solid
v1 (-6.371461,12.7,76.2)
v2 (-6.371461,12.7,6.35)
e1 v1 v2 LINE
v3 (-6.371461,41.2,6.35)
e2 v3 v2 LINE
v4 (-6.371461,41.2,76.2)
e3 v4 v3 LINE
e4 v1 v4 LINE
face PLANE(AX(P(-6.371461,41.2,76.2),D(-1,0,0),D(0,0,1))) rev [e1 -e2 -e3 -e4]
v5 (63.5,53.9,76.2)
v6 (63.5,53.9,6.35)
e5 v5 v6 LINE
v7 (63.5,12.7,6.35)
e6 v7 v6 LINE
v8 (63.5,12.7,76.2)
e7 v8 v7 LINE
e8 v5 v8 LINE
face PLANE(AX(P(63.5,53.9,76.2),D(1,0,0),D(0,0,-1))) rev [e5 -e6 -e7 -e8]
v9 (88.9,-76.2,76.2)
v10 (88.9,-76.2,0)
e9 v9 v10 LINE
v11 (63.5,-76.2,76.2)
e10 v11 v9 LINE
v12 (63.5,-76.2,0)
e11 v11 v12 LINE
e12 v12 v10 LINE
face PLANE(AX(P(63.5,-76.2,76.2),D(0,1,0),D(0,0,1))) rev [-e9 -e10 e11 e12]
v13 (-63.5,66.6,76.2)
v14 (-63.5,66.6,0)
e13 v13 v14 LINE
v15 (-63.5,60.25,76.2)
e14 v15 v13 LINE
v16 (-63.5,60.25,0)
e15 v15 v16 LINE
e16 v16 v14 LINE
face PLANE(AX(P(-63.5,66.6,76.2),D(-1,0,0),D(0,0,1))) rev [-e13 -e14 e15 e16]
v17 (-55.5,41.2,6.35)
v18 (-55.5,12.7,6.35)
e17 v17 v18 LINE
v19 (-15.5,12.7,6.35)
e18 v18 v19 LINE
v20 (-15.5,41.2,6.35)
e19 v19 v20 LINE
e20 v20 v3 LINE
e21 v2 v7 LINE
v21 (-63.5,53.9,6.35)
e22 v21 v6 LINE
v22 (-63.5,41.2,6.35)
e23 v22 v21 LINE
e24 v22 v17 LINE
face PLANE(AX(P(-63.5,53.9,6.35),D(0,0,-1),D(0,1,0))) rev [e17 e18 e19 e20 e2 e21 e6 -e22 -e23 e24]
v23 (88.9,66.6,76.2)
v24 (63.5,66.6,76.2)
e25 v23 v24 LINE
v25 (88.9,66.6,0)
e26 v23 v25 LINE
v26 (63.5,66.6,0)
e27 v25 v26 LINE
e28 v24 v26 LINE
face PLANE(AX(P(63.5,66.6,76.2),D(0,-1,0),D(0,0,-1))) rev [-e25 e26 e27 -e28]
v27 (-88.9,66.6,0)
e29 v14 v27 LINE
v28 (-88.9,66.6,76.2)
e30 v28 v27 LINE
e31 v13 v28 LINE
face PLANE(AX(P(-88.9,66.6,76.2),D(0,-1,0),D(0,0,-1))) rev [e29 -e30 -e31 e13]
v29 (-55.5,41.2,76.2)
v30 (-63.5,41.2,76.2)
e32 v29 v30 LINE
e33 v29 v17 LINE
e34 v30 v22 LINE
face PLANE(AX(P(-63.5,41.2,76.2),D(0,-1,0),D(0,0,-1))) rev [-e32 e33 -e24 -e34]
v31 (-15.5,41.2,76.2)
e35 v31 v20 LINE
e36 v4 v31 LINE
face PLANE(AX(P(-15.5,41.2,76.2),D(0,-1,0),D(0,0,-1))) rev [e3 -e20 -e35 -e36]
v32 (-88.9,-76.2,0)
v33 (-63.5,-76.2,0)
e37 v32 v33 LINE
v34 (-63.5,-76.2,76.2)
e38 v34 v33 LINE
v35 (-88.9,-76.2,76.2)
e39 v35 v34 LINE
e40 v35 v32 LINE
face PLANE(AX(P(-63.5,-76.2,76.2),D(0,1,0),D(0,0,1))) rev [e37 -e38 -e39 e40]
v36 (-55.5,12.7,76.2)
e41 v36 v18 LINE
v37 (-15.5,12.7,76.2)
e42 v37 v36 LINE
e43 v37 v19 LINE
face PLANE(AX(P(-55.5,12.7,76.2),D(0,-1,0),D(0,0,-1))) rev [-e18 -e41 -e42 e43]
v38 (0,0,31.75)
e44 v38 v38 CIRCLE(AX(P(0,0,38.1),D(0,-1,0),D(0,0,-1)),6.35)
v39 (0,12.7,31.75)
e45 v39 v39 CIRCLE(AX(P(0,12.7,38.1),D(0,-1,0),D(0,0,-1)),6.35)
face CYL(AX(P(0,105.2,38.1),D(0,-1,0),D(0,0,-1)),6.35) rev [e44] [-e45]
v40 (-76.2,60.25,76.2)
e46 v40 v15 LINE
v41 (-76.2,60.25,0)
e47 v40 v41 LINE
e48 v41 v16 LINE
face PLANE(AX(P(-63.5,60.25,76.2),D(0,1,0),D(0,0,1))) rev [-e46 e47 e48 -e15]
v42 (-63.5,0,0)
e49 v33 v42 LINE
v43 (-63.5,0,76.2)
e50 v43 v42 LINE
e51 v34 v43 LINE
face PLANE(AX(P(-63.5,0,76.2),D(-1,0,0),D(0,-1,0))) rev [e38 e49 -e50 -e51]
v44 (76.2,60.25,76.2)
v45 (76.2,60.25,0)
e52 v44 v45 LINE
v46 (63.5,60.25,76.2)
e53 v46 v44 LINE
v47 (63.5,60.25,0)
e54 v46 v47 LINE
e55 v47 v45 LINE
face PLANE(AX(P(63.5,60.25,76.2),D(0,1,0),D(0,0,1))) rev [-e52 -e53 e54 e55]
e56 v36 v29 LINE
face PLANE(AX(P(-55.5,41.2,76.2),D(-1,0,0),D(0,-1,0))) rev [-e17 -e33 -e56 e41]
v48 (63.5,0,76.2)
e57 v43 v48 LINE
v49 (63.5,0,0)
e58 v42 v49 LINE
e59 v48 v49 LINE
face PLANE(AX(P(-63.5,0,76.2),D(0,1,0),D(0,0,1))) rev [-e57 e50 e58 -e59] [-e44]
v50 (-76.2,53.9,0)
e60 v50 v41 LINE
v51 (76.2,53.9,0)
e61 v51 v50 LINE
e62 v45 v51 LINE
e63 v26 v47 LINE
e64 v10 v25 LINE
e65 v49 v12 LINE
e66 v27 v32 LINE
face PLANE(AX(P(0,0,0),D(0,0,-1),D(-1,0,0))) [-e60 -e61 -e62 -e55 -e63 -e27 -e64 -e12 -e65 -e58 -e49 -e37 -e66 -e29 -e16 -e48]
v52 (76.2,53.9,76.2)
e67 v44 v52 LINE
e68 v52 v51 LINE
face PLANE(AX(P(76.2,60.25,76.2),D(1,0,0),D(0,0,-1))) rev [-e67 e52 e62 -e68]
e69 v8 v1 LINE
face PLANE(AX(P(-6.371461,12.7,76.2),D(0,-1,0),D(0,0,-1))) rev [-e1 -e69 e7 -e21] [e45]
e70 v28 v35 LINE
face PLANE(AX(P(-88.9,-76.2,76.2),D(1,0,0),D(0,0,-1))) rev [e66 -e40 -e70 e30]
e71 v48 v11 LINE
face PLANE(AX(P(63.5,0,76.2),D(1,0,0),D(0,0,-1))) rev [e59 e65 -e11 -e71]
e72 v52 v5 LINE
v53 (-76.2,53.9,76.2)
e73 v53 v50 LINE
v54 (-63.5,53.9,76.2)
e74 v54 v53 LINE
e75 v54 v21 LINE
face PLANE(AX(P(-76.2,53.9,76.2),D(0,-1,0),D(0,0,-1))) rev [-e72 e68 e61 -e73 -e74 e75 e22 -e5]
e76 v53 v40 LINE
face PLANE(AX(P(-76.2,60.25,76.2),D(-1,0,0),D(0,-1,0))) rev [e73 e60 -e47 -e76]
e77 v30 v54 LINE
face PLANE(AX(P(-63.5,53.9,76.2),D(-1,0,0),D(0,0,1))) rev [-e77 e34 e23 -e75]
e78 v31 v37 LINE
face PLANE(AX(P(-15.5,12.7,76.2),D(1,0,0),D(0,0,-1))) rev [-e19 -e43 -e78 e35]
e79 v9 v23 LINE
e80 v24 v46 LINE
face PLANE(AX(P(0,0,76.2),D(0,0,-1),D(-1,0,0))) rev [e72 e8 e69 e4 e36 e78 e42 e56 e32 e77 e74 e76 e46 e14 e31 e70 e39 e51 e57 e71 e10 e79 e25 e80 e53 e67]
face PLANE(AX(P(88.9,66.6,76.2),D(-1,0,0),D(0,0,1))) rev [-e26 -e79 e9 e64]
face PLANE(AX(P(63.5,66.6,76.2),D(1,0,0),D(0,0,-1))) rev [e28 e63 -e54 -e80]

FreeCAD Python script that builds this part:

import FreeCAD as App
import Part
import Sketcher
from FreeCAD import Vector
Q = App.Units.Quantity

doc = App.newDocument("Part")
params = doc.addObject("Spreadsheet::Sheet", "Params")
for row, (alias, value) in enumerate([
    ("sketch1_width", "127 mm"),
    ("sketch1_width2", "40 mm"),
    ("sketch1_width3", "8 mm"),
    ("sketch1_width4", "25.4 mm"),
    ("sketch1_width5", "12.7 mm"),
    ("pad1_length", "76.2 mm"),
    ("sketch2_width", "41.2 mm"),
    ("sketch2_height", "6.35 mm"),
    ("pad2_length", "127 mm"),
    ("sketch3_diameter", "12.7 mm"),
    ("pocket1_length", "105.2 mm"),
], start=1):
    params.set(f"A{row}", alias)
    params.set(f"B{row}", "=" + value)
    params.setAlias(f"B{row}", alias)

body = doc.addObject("PartDesign::Body", "Body")

sketch1 = body.newObject("Sketcher::SketchObject", "Sketch")
sketch1.AttachmentSupport = (doc.getObject("XY_Plane"), [""])
sketch1.MapMode = "FlatFace"
sketch1.addGeometry(Part.LineSegment(Vector(-64, 0, 0), Vector(64, 0, 0)), False)
sketch1.addGeometry(Part.LineSegment(Vector(64, 0, 0), Vector(64, -76, 0)), False)
sketch1.addGeometry(Part.LineSegment(Vector(64, -76, 0), Vector(89, -76, 0)), False)
sketch1.addGeometry(Part.LineSegment(Vector(89, -76, 0), Vector(89, 67, 0)), False)
sketch1.addGeometry(Part.LineSegment(Vector(89, 67, 0), Vector(64, 67, 0)), False)
sketch1.addGeometry(Part.LineSegment(Vector(64, 67, 0), Vector(64, 60, 0)), False)
sketch1.addGeometry(Part.LineSegment(Vector(64, 60, 0), Vector(76, 60, 0)), False)
sketch1.addGeometry(Part.LineSegment(Vector(76, 60, 0), Vector(76, 54, 0)), False)
sketch1.addGeometry(Part.LineSegment(Vector(76, 54, 0), Vector(64, 54, 0)), False)
sketch1.addGeometry(Part.LineSegment(Vector(64, 54, 0), Vector(64, 13, 0)), False)
sketch1.addGeometry(Part.LineSegment(Vector(64, 13, 0), Vector(-6, 13, 0)), False)
sketch1.addGeometry(Part.LineSegment(Vector(-6, 13, 0), Vector(-6, 41, 0)), False)
sketch1.addGeometry(Part.LineSegment(Vector(-6, 41, 0), Vector(-16, 41, 0)), False)
sketch1.addGeometry(Part.LineSegment(Vector(-16, 41, 0), Vector(-16, 13, 0)), False)
sketch1.addGeometry(Part.LineSegment(Vector(-16, 13, 0), Vector(-56, 13, 0)), False)
sketch1.addGeometry(Part.LineSegment(Vector(-56, 13, 0), Vector(-56, 41, 0)), False)
sketch1.addGeometry(Part.LineSegment(Vector(-56, 41, 0), Vector(-64, 41, 0)), False)
sketch1.addGeometry(Part.LineSegment(Vector(-64, 41, 0), Vector(-64, 54, 0)), False)
sketch1.addGeometry(Part.LineSegment(Vector(-64, 54, 0), Vector(-76, 54, 0)), False)
sketch1.addGeometry(Part.LineSegment(Vector(-76, 54, 0), Vector(-76, 60, 0)), False)
sketch1.addGeometry(Part.LineSegment(Vector(-76, 60, 0), Vector(-64, 60, 0)), False)
sketch1.addGeometry(Part.LineSegment(Vector(-64, 60, 0), Vector(-64, 67, 0)), False)
sketch1.addGeometry(Part.LineSegment(Vector(-64, 67, 0), Vector(-89, 67, 0)), False)
sketch1.addGeometry(Part.LineSegment(Vector(-89, 67, 0), Vector(-89, -76, 0)), False)
sketch1.addGeometry(Part.LineSegment(Vector(-89, -76, 0), Vector(-64, -76, 0)), False)
sketch1.addGeometry(Part.LineSegment(Vector(-64, -76, 0), Vector(-64, 0, 0)), False)
sketch1.addConstraint(Sketcher.Constraint("Coincident", 0, 2, 1, 1))
sketch1.addConstraint(Sketcher.Constraint("Coincident", 1, 2, 2, 1))
sketch1.addConstraint(Sketcher.Constraint("Coincident", 2, 2, 3, 1))
sketch1.addConstraint(Sketcher.Constraint("Coincident", 3, 2, 4, 1))
sketch1.addConstraint(Sketcher.Constraint("Coincident", 4, 2, 5, 1))
sketch1.addConstraint(Sketcher.Constraint("Coincident", 5, 2, 6, 1))
sketch1.addConstraint(Sketcher.Constraint("Coincident", 6, 2, 7, 1))
sketch1.addConstraint(Sketcher.Constraint("Coincident", 7, 2, 8, 1))
sketch1.addConstraint(Sketcher.Constraint("Coincident", 8, 2, 9, 1))
sketch1.addConstraint(Sketcher.Constraint("Coincident", 9, 2, 10, 1))
sketch1.addConstraint(Sketcher.Constraint("Coincident", 10, 2, 11, 1))
sketch1.addConstraint(Sketcher.Constraint("Coincident", 11, 2, 12, 1))
sketch1.addConstraint(Sketcher.Constraint("Coincident", 12, 2, 13, 1))
sketch1.addConstraint(Sketcher.Constraint("Coincident", 13, 2, 14, 1))
sketch1.addConstraint(Sketcher.Constraint("Coincident", 14, 2, 15, 1))
sketch1.addConstraint(Sketcher.Constraint("Coincident", 15, 2, 16, 1))
sketch1.addConstraint(Sketcher.Constraint("Coincident", 16, 2, 17, 1))
sketch1.addConstraint(Sketcher.Constraint("Coincident", 17, 2, 18, 1))
sketch1.addConstraint(Sketcher.Constraint("Coincident", 18, 2, 19, 1))
sketch1.addConstraint(Sketcher.Constraint("Coincident", 19, 2, 20, 1))
sketch1.addConstraint(Sketcher.Constraint("Coincident", 20, 2, 21, 1))
sketch1.addConstraint(Sketcher.Constraint("Coincident", 21, 2, 22, 1))
sketch1.addConstraint(Sketcher.Constraint("Coincident", 22, 2, 23, 1))
sketch1.addConstraint(Sketcher.Constraint("Coincident", 23, 2, 24, 1))
sketch1.addConstraint(Sketcher.Constraint("Coincident", 24, 2, 25, 1))
sketch1.addConstraint(Sketcher.Constraint("Coincident", 25, 2, 0, 1))
sketch1.addConstraint(Sketcher.Constraint("Horizontal", 0))
sketch1.addConstraint(Sketcher.Constraint("Vertical", 1))
sketch1.addConstraint(Sketcher.Constraint("Horizontal", 2))
sketch1.addConstraint(Sketcher.Constraint("Vertical", 3))
sketch1.addConstraint(Sketcher.Constraint("Horizontal", 4))
sketch1.addConstraint(Sketcher.Constraint("Vertical", 5))
sketch1.addConstraint(Sketcher.Constraint("Horizontal", 6))
sketch1.addConstraint(Sketcher.Constraint("Vertical", 7))
sketch1.addConstraint(Sketcher.Constraint("Horizontal", 8))
sketch1.addConstraint(Sketcher.Constraint("Vertical", 9))
sketch1.addConstraint(Sketcher.Constraint("Horizontal", 10))
sketch1.addConstraint(Sketcher.Constraint("Vertical", 11))
sketch1.addConstraint(Sketcher.Constraint("Horizontal", 12))
sketch1.addConstraint(Sketcher.Constraint("Vertical", 13))
sketch1.addConstraint(Sketcher.Constraint("Horizontal", 14))
sketch1.addConstraint(Sketcher.Constraint("Vertical", 15))
sketch1.addConstraint(Sketcher.Constraint("Horizontal", 16))
sketch1.addConstraint(Sketcher.Constraint("Vertical", 17))
sketch1.addConstraint(Sketcher.Constraint("Horizontal", 18))
sketch1.addConstraint(Sketcher.Constraint("Vertical", 19))
sketch1.addConstraint(Sketcher.Constraint("Horizontal", 20))
sketch1.addConstraint(Sketcher.Constraint("Vertical", 21))
sketch1.addConstraint(Sketcher.Constraint("Horizontal", 22))
sketch1.addConstraint(Sketcher.Constraint("Vertical", 23))
sketch1.addConstraint(Sketcher.Constraint("Horizontal", 24))
sketch1.addConstraint(Sketcher.Constraint("Vertical", 25))
sketch1.addConstraint(Sketcher.Constraint("Symmetric", 0, 2, 25, 2, -1, 1))
sketch1.addConstraint(Sketcher.Constraint("Symmetric", 8, 2, 17, 2, -2))
sketch1.addConstraint(Sketcher.Constraint("Symmetric", 6, 2, 19, 2, -2))
sketch1.addConstraint(Sketcher.Constraint("Symmetric", 4, 2, 21, 2, -2))
sketch1.addConstraint(Sketcher.Constraint("Symmetric", 2, 2, 23, 2, -2))
sketch1.addConstraint(Sketcher.Constraint("Horizontal", 10, 2, 13, 2))
sketch1.addConstraint(Sketcher.Constraint("Horizontal", 12, 2, 15, 2))
sketch1.addConstraint(Sketcher.Constraint("Vertical", 1, 2, 4, 2))
sketch1.addConstraint(Sketcher.Constraint("Vertical", 5, 2, 8, 2))
sketch1.addConstraint(Sketcher.Constraint("Equal", 5, 7))
sketch1.addConstraint(Sketcher.Constraint("Equal", 20, 17))
sketch1.addConstraint(Sketcher.Constraint("DistanceX", 0, 1, 0, 2, Q("127 mm")))
sketch1.addConstraint(Sketcher.Constraint("DistanceX", 14, 2, 14, 1, Q("40 mm")))
sketch1.addConstraint(Sketcher.Constraint("DistanceX", 16, 2, 16, 1, Q("8 mm")))
sketch1.addConstraint(Sketcher.Constraint("DistanceX", 2, 1, 2, 2, Q("25.4 mm")))
sketch1.addConstraint(Sketcher.Constraint("DistanceX", 6, 1, 6, 2, Q("12.7 mm")))
sketch1.addConstraint(Sketcher.Constraint("DistanceY", 1, 2, 1, 1, Q("76.2 mm")))
sketch1.addConstraint(Sketcher.Constraint("DistanceY", 3, 1, 3, 2, Q("142.8 mm")))
sketch1.addConstraint(Sketcher.Constraint("DistanceY", 9, 2, 9, 1, Q("41.2 mm")))
sketch1.addConstraint(Sketcher.Constraint("DistanceY", 5, 2, 5, 1, Q("6.35 mm")))
sketch1.addConstraint(Sketcher.Constraint("DistanceX", 10, 2, 10, 1, Q("69.871461 mm")))
sketch1.setExpression("Constraints[63]", "Params.sketch1_width")
sketch1.setExpression("Constraints[64]", "Params.sketch1_width2")
sketch1.setExpression("Constraints[65]", "Params.sketch1_width3")
sketch1.setExpression("Constraints[66]", "Params.sketch1_width4")
sketch1.setExpression("Constraints[67]", "Params.sketch1_width5")
pad1 = body.newObject("PartDesign::Pad", "Pad")
pad1.Profile = sketch1
pad1.setExpression("Length", "Params.pad1_length")

sketch2 = body.newObject("Sketcher::SketchObject", "Sketch001")
sketch2.AttachmentSupport = (doc.getObject("YZ_Plane"), [""])
sketch2.MapMode = "FlatFace"
sketch2.AttachmentOffset = App.Placement(Vector(0, 0, 63.5), App.Rotation())
sketch2.addGeometry(Part.LineSegment(Vector(54, 0, 0), Vector(13, 0, 0)), False)
sketch2.addGeometry(Part.LineSegment(Vector(13, 0, 0), Vector(13, 6, 0)), False)
sketch2.addGeometry(Part.LineSegment(Vector(13, 6, 0), Vector(54, 6, 0)), False)
sketch2.addGeometry(Part.LineSegment(Vector(54, 6, 0), Vector(54, 0, 0)), False)
sketch2.addConstraint(Sketcher.Constraint("Coincident", 0, 2, 1, 1))
sketch2.addConstraint(Sketcher.Constraint("Coincident", 1, 2, 2, 1))
sketch2.addConstraint(Sketcher.Constraint("Coincident", 2, 2, 3, 1))
sketch2.addConstraint(Sketcher.Constraint("Coincident", 3, 2, 0, 1))
sketch2.addConstraint(Sketcher.Constraint("Horizontal", 0))
sketch2.addConstraint(Sketcher.Constraint("Vertical", 1))
sketch2.addConstraint(Sketcher.Constraint("Horizontal", 2))
sketch2.addConstraint(Sketcher.Constraint("Vertical", 3))
sketch2.addConstraint(Sketcher.Constraint("PointOnObject", 0, 2, -1))
sketch2.addConstraint(Sketcher.Constraint("DistanceX", 0, 2, 0, 1, Q("41.2 mm")))
sketch2.addConstraint(Sketcher.Constraint("DistanceY", 1, 1, 1, 2, Q("6.35 mm")))
sketch2.addConstraint(Sketcher.Constraint("DistanceX", -1, 1, 0, 2, Q("12.7 mm")))
sketch2.setExpression("Constraints[9]", "Params.sketch2_width")
sketch2.setExpression("Constraints[10]", "Params.sketch2_height")
pad2 = body.newObject("PartDesign::Pad", "Pad001")
pad2.Profile = sketch2
pad2.setExpression("Length", "Params.pad2_length")
pad2.Reversed = True

sketch3 = body.newObject("Sketcher::SketchObject", "Sketch002")
sketch3.AttachmentSupport = (doc.getObject("XZ_Plane"), [""])
sketch3.MapMode = "FlatFace"
sketch3.addGeometry(Part.Circle(Vector(0, 38, 0), Vector(0, 0, 1), 6), False)
sketch3.addConstraint(Sketcher.Constraint("PointOnObject", 0, 3, -2))
sketch3.addConstraint(Sketcher.Constraint("Diameter", 0, Q("12.7 mm")))
sketch3.addConstraint(Sketcher.Constraint("DistanceY", -1, 1, 0, 3, Q("38.1 mm")))
sketch3.setExpression("Constraints[1]", "Params.sketch3_diameter")
pocket1 = body.newObject("PartDesign::Pocket", "Pocket")
pocket1.Profile = sketch3
pocket1.setExpression("Length", "Params.pocket1_length")

doc.recompute()
